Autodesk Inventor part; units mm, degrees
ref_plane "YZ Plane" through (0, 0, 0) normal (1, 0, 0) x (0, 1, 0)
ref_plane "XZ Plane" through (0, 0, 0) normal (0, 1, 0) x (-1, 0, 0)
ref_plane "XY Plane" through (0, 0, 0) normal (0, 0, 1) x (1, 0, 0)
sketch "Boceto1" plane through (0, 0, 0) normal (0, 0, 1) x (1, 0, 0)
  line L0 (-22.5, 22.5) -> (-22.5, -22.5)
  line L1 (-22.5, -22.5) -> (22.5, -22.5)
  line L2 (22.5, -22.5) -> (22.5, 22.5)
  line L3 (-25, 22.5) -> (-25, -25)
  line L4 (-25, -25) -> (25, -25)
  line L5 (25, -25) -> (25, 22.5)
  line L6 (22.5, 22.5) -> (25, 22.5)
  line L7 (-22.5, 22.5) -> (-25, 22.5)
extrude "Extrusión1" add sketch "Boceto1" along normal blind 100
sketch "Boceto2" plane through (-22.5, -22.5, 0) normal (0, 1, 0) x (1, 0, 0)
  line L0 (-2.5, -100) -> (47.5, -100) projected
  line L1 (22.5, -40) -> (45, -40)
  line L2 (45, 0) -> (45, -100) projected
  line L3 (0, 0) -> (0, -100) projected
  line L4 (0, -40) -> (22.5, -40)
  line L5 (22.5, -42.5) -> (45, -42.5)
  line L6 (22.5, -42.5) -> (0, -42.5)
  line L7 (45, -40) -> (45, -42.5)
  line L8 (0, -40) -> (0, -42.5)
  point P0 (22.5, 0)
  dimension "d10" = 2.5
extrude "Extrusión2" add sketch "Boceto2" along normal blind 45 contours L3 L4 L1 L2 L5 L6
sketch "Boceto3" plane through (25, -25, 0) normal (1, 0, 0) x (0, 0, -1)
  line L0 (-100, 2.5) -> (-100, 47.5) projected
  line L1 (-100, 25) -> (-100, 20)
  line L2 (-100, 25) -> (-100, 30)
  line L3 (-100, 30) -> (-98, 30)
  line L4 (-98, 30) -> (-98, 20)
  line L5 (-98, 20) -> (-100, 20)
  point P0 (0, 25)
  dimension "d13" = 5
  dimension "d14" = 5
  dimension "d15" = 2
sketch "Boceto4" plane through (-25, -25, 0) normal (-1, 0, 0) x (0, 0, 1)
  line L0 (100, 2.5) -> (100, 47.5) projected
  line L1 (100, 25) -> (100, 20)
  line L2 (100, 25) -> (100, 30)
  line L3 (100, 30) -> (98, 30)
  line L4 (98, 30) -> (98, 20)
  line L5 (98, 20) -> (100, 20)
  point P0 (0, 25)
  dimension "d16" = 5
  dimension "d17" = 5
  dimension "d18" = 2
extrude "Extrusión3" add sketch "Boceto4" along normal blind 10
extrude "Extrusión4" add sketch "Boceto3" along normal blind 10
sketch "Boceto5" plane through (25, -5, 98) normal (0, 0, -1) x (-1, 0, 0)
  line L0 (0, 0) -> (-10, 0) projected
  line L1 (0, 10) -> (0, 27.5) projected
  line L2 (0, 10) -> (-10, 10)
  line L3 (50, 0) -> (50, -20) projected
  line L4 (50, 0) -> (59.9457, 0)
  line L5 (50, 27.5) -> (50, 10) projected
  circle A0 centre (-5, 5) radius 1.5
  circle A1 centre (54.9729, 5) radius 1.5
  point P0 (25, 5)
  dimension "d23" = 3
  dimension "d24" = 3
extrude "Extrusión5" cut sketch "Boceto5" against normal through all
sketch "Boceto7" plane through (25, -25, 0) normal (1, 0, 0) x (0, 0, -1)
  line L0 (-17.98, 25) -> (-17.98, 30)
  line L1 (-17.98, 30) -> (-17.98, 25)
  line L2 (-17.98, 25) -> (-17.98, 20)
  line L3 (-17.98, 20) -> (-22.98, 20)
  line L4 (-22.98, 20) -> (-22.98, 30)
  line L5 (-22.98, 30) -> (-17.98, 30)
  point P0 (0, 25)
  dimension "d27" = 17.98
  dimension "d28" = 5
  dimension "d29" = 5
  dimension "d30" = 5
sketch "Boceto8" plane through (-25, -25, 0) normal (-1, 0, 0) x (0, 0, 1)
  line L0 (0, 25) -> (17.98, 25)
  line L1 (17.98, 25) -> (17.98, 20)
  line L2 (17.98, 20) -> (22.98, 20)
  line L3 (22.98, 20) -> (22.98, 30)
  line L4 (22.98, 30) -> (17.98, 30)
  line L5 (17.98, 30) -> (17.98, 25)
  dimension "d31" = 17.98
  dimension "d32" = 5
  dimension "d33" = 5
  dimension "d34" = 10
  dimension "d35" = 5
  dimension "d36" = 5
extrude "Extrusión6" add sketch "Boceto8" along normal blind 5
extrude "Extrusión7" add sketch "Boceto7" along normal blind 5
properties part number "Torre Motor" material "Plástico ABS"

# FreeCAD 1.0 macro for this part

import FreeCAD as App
import Part
import Sketcher

doc = App.newDocument("Part")
body = doc.addObject("PartDesign::Body", "Body")

sketch1 = body.newObject("Sketcher::SketchObject", "Sketch")
sketch1.AttachmentSupport = (doc.getObject("XY_Plane"), [""])
sketch1.MapMode = "FlatFace"
sketch1.addGeometry([
    Part.LineSegment(App.Vector(-22.5, -22.5, 0), App.Vector(-22.5, 22.5, 0)),
    Part.LineSegment(App.Vector(-22.5, 22.5, 0), App.Vector(-25, 22.5, 0)),
    Part.LineSegment(App.Vector(-25, 22.5, 0), App.Vector(-25, -25, 0)),
    Part.LineSegment(App.Vector(-25, -25, 0), App.Vector(25, -25, 0)),
    Part.LineSegment(App.Vector(25, -25, 0), App.Vector(25, 22.5, 0)),
    Part.LineSegment(App.Vector(25, 22.5, 0), App.Vector(22.5, 22.5, 0)),
    Part.LineSegment(App.Vector(22.5, 22.5, 0), App.Vector(22.5, -22.5, 0)),
    Part.LineSegment(App.Vector(22.5, -22.5, 0), App.Vector(-22.5, -22.5, 0)),
], False)
sketch1.addConstraint([
    Sketcher.Constraint("Coincident", 0, 2, 1, 1),
    Sketcher.Constraint("Coincident", 1, 2, 2, 1),
    Sketcher.Constraint("Coincident", 2, 2, 3, 1),
    Sketcher.Constraint("Coincident", 3, 2, 4, 1),
    Sketcher.Constraint("Coincident", 4, 2, 5, 1),
    Sketcher.Constraint("Coincident", 5, 2, 6, 1),
    Sketcher.Constraint("Coincident", 6, 2, 7, 1),
    Sketcher.Constraint("Coincident", 7, 2, 0, 1),
    Sketcher.Constraint("Vertical", 0),
    Sketcher.Constraint("Horizontal", 1),
    Sketcher.Constraint("Vertical", 2),
    Sketcher.Constraint("Horizontal", 3),
    Sketcher.Constraint("Vertical", 4),
    Sketcher.Constraint("Horizontal", 5),
    Sketcher.Constraint("Vertical", 6),
    Sketcher.Constraint("Horizontal", 7),
    Sketcher.Constraint("Symmetric", 0, 2, 6, 2, -1, 1),
    Sketcher.Constraint("Symmetric", 1, 2, 4, 2, -2),
    Sketcher.Constraint("Equal", 7, 0),
    Sketcher.Constraint("DistanceX", 3, 1, 3, 2, 50.0),
    Sketcher.Constraint("DistanceX", 7, 2, 7, 1, 45.0),
    Sketcher.Constraint("DistanceY", 2, 2, 2, 1, 47.5),
])
pad1 = body.newObject("PartDesign::Pad", "Pad")
pad1.Profile = sketch1
pad1.Length = 100

sketch2 = body.newObject("Sketcher::SketchObject", "Sketch001")
sketch2.AttachmentSupport = (doc.getObject("XZ_Plane"), [""])
sketch2.MapMode = "FlatFace"
sketch2.AttachmentOffset = App.Placement(App.Vector(0, 0, 22.5), App.Rotation())
sketch2.addGeometry([
    Part.LineSegment(App.Vector(-22.5, 40, 0), App.Vector(-22.5, 42.5, 0)),
    Part.LineSegment(App.Vector(-22.5, 42.5, 0), App.Vector(22.5, 42.5, 0)),
    Part.LineSegment(App.Vector(22.5, 42.5, 0), App.Vector(22.5, 40, 0)),
    Part.LineSegment(App.Vector(22.5, 40, 0), App.Vector(-22.5, 40, 0)),
], False)
sketch2.addConstraint([
    Sketcher.Constraint("Coincident", 0, 2, 1, 1),
    Sketcher.Constraint("Coincident", 1, 2, 2, 1),
    Sketcher.Constraint("Coincident", 2, 2, 3, 1),
    Sketcher.Constraint("Coincident", 3, 2, 0, 1),
    Sketcher.Constraint("Vertical", 0),
    Sketcher.Constraint("Horizontal", 1),
    Sketcher.Constraint("Vertical", 2),
    Sketcher.Constraint("Horizontal", 3),
    Sketcher.Constraint("DistanceY", 0, 1, 0, 2, 2.5),
    Sketcher.Constraint("DistanceX", 1, 1, 1, 2, 45.0),
    Sketcher.Constraint("DistanceY", -1, 1, 2, 2, 40.0),
    Sketcher.Constraint("DistanceX", 0, 2, -1, 1, 22.5),
])
pad2 = body.newObject("PartDesign::Pad", "Pad001")
pad2.Profile = sketch2
pad2.Length = 45
pad2.Reversed = True

sketch3 = body.newObject("Sketcher::SketchObject", "Sketch002")
sketch3.AttachmentSupport = (doc.getObject("YZ_Plane"), [""])
sketch3.MapMode = "FlatFace"
sketch3.AttachmentOffset = App.Placement(App.Vector(0, 0, -25), App.Rotation())
sketch3.addGeometry([
    Part.LineSegment(App.Vector(-5, 98, 0), App.Vector(-5, 100, 0)),
    Part.LineSegment(App.Vector(-5, 100, 0), App.Vector(5, 100, 0)),
    Part.LineSegment(App.Vector(5, 100, 0), App.Vector(5, 98, 0)),
    Part.LineSegment(App.Vector(5, 98, 0), App.Vector(-5, 98, 0)),
], False)
sketch3.addConstraint([
    Sketcher.Constraint("Coincident", 0, 2, 1, 1),
    Sketcher.Constraint("Coincident", 1, 2, 2, 1),
    Sketcher.Constraint("Coincident", 2, 2, 3, 1),
    Sketcher.Constraint("Coincident", 3, 2, 0, 1),
    Sketcher.Constraint("Vertical", 0),
    Sketcher.Constraint("Horizontal", 1),
    Sketcher.Constraint("Vertical", 2),
    Sketcher.Constraint("Horizontal", 3),
    Sketcher.Constraint("DistanceY", 0, 1, 0, 2, 2.0),
    Sketcher.Constraint("DistanceX", 0, 2, -1, 1, 5.0),
    Sketcher.Constraint("DistanceX", -1, 1, 1, 2, 5.0),
    Sketcher.Constraint("DistanceY", -1, 1, 0, 2, 100.0),
])
pad3 = body.newObject("PartDesign::Pad", "Pad002")
pad3.Profile = sketch3
pad3.Length = 10
pad3.Reversed = True

sketch4 = body.newObject("Sketcher::SketchObject", "Sketch003")
sketch4.AttachmentSupport = (doc.getObject("YZ_Plane"), [""])
sketch4.MapMode = "FlatFace"
sketch4.AttachmentOffset = App.Placement(App.Vector(0, 0, 25), App.Rotation())
sketch4.addGeometry([
    Part.LineSegment(App.Vector(5, 100, 0), App.Vector(-5, 100, 0)),
    Part.LineSegment(App.Vector(-5, 100, 0), App.Vector(-5, 98, 0)),
    Part.LineSegment(App.Vector(-5, 98, 0), App.Vector(5, 98, 0)),
    Part.LineSegment(App.Vector(5, 98, 0), App.Vector(5, 100, 0)),
], False)
sketch4.addConstraint([
    Sketcher.Constraint("Coincident", 0, 2, 1, 1),
    Sketcher.Constraint("Coincident", 1, 2, 2, 1),
    Sketcher.Constraint("Coincident", 2, 2, 3, 1),
    Sketcher.Constraint("Coincident", 3, 2, 0, 1),
    Sketcher.Constraint("Horizontal", 0),
    Sketcher.Constraint("Vertical", 1),
    Sketcher.Constraint("Horizontal", 2),
    Sketcher.Constraint("Vertical", 3),
    Sketcher.Constraint("DistanceY", 1, 2, 1, 1, 2.0),
    Sketcher.Constraint("DistanceX", 0, 2, -1, 1, 5.0),
    Sketcher.Constraint("DistanceX", -1, 1, 2, 2, 5.0),
    Sketcher.Constraint("DistanceY", -1, 1, 0, 2, 100.0),
])
pad4 = body.newObject("PartDesign::Pad", "Pad003")
pad4.Profile = sketch4
pad4.Length = 10

sketch5 = body.newObject("Sketcher::SketchObject", "Sketch004")
sketch5.AttachmentSupport = (doc.getObject("XY_Plane"), [""])
sketch5.MapMode = "FlatFace"
sketch5.AttachmentOffset = App.Placement(App.Vector(0, 0, 98), App.Rotation())
sketch5.addGeometry([
    Part.Circle(App.Vector(30, 0, 0), App.Vector(0, 0, 1), 1.5),
    Part.Circle(App.Vector(-30, 0, 0), App.Vector(0, 0, 1), 1.5),
], False)
sketch5.addConstraint([
    Sketcher.Constraint("Equal", 0, 1),
    Sketcher.Constraint("PointOnObject", 0, 3, -1),
    Sketcher.Constraint("PointOnObject", 1, 3, -1),
    Sketcher.Constraint("Diameter", 0, 3.0),
    Sketcher.Constraint("DistanceX", -1, 1, 0, 3, 30.0),
    Sketcher.Constraint("DistanceX", 1, 3, -1, 1, 29.973),
])
pocket1 = body.newObject("PartDesign::Pocket", "Pocket")
pocket1.Profile = sketch5
pocket1.Type = "ThroughAll"
pocket1.Reversed = True

sketch6 = body.newObject("Sketcher::SketchObject", "Sketch005")
sketch6.AttachmentSupport = (doc.getObject("YZ_Plane"), [""])
sketch6.MapMode = "FlatFace"
sketch6.AttachmentOffset = App.Placement(App.Vector(0, 0, -25), App.Rotation())
sketch6.addGeometry([
    Part.LineSegment(App.Vector(5, 18, 0), App.Vector(-5, 18, 0)),
    Part.LineSegment(App.Vector(-5, 18, 0), App.Vector(-5, 23, 0)),
    Part.LineSegment(App.Vector(-5, 23, 0), App.Vector(5, 23, 0)),
    Part.LineSegment(App.Vector(5, 23, 0), App.Vector(5, 18, 0)),
], False)
sketch6.addConstraint([
    Sketcher.Constraint("Coincident", 0, 2, 1, 1),
    Sketcher.Constraint("Coincident", 1, 2, 2, 1),
    Sketcher.Constraint("Coincident", 2, 2, 3, 1),
    Sketcher.Constraint("Coincident", 3, 2, 0, 1),
    Sketcher.Constraint("Horizontal", 0),
    Sketcher.Constraint("Vertical", 1),
    Sketcher.Constraint("Horizontal", 2),
    Sketcher.Constraint("Vertical", 3),
    Sketcher.Constraint("DistanceX", 0, 2, 0, 1, 10.0),
    Sketcher.Constraint("DistanceY", 1, 1, 1, 2, 5.0),
    Sketcher.Constraint("DistanceX", 0, 2, -1, 1, 5.0),
    Sketcher.Constraint("DistanceY", -1, 1, 0, 2, 17.98),
])
pad5 = body.newObject("PartDesign::Pad", "Pad004")
pad5.Profile = sketch6
pad5.Length = 5
pad5.Reversed = True

sketch7 = body.newObject("Sketcher::SketchObject", "Sketch006")
sketch7.AttachmentSupport = (doc.getObject("YZ_Plane"), [""])
sketch7.MapMode = "FlatFace"
sketch7.AttachmentOffset = App.Placement(App.Vector(0, 0, 25), App.Rotation())
sketch7.addGeometry([
    Part.LineSegment(App.Vector(-5, 18, 0), App.Vector(5, 18, 0)),
    Part.LineSegment(App.Vector(5, 18, 0), App.Vector(5, 23, 0)),
    Part.LineSegment(App.Vector(5, 23, 0), App.Vector(-5, 23, 0)),
    Part.LineSegment(App.Vector(-5, 23, 0), App.Vector(-5, 18, 0)),
], False)
sketch7.addConstraint([
    Sketcher.Constraint("Coincident", 0, 2, 1, 1),
    Sketcher.Constraint("Coincident", 1, 2, 2, 1),
    Sketcher.Constraint("Coincident", 2, 2, 3, 1),
    Sketcher.Constraint("Coincident", 3, 2, 0, 1),
    Sketcher.Constraint("Horizontal", 0),
    Sketcher.Constraint("Vertical", 1),
    Sketcher.Constraint("Horizontal", 2),
    Sketcher.Constraint("Vertical", 3),
    Sketcher.Constraint("DistanceY", 1, 1, 1, 2, 5.0),
    Sketcher.Constraint("DistanceX", -1, 1, 0, 2, 5.0),
    Sketcher.Constraint("DistanceX", 2, 2, -1, 1, 5.0),
    Sketcher.Constraint("DistanceY", -1, 1, 0, 2, 17.98),
])
pad6 = body.newObject("PartDesign::Pad", "Pad005")
pad6.Profile = sketch7
pad6.Length = 5

doc.recompute()
